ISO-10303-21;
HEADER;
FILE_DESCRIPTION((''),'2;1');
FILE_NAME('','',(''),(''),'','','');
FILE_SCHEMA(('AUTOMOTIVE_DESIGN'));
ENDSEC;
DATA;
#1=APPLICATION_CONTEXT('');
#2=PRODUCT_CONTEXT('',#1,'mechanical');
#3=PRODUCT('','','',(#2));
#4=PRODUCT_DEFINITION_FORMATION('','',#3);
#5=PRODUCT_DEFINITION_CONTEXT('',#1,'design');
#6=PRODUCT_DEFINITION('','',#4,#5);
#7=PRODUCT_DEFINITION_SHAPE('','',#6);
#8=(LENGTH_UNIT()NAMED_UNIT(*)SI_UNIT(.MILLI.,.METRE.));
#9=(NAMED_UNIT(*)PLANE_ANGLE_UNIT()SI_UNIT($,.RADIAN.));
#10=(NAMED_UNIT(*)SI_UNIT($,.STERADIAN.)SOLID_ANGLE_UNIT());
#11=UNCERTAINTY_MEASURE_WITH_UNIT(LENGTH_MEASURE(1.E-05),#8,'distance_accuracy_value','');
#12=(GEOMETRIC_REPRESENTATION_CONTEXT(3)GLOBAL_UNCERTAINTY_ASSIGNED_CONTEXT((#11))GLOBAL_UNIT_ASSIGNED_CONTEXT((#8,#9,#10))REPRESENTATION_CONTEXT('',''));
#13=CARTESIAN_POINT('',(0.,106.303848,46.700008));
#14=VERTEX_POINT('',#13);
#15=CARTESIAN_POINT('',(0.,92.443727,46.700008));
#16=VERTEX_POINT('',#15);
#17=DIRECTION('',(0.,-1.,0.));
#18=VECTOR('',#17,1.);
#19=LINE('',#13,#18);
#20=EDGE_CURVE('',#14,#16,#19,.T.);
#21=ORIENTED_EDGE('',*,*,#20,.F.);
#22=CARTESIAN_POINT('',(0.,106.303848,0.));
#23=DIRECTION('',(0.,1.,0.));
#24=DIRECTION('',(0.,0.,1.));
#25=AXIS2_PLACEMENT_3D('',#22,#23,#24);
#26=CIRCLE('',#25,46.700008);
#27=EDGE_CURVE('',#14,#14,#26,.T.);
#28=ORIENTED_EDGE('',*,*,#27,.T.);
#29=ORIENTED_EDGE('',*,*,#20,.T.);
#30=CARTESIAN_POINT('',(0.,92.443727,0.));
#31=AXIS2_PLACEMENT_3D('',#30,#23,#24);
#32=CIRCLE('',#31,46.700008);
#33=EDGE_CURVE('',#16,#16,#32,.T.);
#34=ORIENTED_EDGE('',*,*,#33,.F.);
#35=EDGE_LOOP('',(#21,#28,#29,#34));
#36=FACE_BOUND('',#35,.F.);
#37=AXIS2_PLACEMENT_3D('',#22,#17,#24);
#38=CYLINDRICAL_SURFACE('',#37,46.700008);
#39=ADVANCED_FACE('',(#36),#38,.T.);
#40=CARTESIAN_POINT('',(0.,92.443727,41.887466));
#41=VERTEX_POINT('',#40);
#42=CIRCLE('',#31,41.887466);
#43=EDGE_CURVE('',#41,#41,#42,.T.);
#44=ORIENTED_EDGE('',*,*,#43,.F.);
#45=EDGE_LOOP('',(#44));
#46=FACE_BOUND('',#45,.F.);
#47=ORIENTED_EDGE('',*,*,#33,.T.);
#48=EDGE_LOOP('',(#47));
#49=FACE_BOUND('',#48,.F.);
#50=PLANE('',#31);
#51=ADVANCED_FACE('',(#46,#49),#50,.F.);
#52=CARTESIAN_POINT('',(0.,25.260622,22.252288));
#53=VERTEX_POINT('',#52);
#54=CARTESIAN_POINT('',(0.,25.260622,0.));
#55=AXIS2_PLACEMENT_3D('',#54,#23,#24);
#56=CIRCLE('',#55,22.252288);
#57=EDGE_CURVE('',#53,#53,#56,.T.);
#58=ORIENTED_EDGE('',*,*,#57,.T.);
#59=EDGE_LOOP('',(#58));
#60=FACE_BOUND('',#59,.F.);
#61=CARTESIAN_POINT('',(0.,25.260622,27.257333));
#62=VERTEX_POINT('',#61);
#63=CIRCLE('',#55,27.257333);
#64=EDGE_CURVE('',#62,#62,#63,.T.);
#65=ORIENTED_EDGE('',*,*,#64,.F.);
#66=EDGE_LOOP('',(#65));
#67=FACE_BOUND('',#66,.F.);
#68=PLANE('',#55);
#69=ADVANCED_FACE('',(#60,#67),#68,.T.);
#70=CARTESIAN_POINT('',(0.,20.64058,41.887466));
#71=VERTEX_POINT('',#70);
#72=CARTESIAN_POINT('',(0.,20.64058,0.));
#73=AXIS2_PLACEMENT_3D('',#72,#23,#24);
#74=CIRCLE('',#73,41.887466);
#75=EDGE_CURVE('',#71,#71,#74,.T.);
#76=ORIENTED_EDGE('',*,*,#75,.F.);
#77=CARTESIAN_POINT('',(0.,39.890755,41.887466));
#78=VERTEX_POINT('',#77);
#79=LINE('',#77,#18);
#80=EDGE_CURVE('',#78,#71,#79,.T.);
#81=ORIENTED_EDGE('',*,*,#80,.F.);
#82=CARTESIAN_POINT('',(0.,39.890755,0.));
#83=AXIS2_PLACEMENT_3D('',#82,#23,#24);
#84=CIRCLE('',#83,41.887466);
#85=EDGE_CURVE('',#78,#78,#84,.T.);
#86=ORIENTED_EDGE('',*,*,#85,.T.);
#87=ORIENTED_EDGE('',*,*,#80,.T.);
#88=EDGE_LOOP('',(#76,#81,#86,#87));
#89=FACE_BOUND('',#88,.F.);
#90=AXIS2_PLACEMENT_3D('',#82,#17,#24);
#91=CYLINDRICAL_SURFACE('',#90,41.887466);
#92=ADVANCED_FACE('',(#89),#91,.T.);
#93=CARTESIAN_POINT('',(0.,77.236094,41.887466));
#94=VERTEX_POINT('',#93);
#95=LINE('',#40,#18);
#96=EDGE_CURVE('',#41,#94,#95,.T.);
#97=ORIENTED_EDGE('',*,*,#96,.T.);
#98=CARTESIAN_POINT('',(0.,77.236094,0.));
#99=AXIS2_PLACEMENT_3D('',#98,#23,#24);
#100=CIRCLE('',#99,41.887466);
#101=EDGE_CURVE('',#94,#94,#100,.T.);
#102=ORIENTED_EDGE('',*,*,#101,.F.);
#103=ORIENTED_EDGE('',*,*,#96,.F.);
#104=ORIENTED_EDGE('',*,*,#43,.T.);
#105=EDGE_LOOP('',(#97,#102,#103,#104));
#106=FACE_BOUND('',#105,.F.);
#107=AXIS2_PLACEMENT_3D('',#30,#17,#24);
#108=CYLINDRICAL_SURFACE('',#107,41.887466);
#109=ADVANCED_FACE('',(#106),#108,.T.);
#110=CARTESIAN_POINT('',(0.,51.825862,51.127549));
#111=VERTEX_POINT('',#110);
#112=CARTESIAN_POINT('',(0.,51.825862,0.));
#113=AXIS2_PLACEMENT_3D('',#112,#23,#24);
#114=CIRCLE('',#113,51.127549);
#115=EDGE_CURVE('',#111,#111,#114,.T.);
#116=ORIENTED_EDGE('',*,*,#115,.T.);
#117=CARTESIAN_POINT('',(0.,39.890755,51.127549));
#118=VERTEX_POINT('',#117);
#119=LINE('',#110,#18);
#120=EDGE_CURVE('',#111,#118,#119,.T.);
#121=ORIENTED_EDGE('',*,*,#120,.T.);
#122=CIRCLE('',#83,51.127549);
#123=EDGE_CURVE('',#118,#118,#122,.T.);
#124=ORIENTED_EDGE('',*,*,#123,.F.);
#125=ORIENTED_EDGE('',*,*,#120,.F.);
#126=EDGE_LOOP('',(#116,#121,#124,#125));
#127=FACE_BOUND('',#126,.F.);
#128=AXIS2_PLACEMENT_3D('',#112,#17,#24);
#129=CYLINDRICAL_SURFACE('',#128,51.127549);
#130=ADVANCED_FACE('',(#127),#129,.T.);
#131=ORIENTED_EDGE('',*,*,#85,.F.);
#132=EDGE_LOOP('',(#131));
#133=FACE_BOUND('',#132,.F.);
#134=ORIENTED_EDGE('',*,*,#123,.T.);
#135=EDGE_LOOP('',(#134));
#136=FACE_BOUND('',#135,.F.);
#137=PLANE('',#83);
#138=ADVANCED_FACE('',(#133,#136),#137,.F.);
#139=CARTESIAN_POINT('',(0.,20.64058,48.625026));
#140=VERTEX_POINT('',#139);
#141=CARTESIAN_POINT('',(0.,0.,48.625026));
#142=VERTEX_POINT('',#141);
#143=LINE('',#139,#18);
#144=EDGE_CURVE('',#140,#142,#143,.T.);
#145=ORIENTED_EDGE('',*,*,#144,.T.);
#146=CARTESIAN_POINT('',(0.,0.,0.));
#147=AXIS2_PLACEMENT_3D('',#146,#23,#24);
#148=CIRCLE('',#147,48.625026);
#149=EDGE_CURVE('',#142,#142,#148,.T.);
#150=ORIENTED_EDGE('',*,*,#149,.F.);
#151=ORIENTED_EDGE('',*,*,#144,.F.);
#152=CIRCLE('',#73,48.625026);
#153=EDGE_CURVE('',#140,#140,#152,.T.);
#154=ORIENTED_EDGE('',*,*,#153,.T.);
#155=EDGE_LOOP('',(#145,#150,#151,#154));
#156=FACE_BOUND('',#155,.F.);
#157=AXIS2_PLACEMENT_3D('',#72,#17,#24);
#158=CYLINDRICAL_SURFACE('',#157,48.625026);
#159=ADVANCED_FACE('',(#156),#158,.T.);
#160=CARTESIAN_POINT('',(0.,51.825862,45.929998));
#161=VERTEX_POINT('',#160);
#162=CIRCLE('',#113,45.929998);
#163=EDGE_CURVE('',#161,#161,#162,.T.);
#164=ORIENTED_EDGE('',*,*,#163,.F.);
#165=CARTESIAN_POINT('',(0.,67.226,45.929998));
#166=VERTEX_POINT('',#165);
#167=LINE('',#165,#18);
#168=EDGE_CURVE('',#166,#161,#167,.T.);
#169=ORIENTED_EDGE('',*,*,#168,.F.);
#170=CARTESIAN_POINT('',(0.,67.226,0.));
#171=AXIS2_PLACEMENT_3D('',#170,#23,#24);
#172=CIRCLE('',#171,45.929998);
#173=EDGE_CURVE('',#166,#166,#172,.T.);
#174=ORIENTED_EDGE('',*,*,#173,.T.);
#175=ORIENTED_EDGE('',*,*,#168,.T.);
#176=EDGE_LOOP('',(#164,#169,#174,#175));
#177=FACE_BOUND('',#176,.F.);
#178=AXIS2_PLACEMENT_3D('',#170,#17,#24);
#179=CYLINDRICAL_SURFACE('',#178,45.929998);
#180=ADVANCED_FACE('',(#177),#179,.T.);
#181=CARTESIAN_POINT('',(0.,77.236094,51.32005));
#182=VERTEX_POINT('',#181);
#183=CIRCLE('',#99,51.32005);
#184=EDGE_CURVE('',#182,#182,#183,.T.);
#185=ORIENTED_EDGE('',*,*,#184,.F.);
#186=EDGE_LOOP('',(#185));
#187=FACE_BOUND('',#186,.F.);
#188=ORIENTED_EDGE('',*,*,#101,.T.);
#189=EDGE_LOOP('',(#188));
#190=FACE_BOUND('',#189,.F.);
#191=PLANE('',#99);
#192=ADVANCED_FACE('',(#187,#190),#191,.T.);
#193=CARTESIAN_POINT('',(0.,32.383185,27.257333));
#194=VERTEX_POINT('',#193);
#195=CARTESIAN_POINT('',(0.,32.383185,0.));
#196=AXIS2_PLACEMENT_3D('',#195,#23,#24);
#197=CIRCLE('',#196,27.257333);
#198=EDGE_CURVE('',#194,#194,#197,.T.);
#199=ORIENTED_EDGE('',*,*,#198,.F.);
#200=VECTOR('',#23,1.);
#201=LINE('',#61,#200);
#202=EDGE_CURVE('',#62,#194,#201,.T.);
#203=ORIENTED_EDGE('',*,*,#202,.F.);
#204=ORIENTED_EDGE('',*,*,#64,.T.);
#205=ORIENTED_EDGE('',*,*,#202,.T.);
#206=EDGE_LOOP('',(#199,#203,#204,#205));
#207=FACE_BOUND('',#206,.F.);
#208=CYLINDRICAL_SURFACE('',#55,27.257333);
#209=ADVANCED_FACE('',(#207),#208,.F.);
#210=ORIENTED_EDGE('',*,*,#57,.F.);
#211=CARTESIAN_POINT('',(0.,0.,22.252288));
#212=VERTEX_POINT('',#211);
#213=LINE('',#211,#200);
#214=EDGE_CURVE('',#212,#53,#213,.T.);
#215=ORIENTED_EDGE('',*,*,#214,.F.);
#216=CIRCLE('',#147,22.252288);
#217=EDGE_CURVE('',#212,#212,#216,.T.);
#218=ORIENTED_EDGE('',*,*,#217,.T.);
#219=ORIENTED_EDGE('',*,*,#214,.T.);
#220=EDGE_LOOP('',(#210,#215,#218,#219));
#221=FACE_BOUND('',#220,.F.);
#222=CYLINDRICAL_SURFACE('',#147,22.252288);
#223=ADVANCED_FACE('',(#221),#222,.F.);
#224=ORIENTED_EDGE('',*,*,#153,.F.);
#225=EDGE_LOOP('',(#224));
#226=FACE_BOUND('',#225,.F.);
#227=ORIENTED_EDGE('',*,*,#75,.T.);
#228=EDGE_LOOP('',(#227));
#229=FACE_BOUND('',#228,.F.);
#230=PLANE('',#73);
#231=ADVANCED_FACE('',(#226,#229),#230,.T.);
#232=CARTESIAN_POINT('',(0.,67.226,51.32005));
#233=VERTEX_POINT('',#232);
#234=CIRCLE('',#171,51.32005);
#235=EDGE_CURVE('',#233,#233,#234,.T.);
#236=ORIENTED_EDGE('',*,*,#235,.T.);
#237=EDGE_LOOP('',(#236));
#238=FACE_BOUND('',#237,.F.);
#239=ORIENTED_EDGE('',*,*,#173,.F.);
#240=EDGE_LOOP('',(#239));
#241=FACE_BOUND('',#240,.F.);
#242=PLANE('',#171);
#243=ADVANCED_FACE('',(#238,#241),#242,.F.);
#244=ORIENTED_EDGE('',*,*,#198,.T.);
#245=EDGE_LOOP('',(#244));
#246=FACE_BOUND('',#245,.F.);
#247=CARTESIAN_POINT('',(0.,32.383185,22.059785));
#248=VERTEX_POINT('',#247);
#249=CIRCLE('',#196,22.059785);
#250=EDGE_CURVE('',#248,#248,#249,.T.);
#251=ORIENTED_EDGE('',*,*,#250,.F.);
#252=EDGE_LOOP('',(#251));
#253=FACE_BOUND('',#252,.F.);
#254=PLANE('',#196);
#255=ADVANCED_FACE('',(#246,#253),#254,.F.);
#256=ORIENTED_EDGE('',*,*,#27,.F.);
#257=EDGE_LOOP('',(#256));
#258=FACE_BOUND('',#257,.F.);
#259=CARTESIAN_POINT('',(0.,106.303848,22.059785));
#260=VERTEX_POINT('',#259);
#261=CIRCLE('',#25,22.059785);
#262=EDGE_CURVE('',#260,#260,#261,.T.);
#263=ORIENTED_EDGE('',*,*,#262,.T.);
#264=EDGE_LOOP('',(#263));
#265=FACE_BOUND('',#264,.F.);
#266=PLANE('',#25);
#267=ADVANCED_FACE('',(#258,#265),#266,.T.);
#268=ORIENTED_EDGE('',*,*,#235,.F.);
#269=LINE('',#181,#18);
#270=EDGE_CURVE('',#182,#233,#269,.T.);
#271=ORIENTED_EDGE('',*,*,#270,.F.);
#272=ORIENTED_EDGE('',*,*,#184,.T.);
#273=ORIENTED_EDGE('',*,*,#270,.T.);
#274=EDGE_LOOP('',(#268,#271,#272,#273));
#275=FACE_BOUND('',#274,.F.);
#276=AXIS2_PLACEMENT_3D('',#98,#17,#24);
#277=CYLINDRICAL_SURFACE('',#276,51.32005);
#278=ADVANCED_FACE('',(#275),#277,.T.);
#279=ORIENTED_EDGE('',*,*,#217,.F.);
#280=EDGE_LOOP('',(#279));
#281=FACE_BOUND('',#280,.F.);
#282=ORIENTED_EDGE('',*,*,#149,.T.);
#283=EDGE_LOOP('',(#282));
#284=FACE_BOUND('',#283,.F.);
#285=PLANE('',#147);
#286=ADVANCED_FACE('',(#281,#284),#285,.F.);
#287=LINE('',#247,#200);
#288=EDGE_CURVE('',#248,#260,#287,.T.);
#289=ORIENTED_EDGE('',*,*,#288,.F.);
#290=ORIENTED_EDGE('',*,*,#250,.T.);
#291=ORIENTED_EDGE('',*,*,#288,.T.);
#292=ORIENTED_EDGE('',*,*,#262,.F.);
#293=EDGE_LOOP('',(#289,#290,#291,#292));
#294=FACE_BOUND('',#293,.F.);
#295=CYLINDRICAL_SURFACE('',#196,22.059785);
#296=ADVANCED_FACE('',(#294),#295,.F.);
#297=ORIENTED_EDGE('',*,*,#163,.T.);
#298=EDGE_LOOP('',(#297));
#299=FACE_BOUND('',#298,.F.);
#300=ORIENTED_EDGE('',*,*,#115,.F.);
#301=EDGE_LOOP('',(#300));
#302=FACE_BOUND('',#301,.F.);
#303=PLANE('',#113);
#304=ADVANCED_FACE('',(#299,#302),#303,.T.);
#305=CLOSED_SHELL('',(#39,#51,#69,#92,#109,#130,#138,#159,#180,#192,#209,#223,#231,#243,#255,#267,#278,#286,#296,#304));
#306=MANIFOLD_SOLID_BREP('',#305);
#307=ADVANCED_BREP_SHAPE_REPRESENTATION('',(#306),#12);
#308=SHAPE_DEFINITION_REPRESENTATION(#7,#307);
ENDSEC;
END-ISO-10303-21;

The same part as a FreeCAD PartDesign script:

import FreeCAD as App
import Part
import Sketcher

V = App.Vector
Q = App.Units.Quantity


def add_polygon(sketch, points):
    """Adds a closed chain of lines whose ends are joined by coincident constraints."""
    first, n = sketch.GeometryCount, len(points)
    for a, b in zip(points, points[1:] + points[:1]):
        sketch.addGeometry(Part.LineSegment(App.Vector(*a, 0), App.Vector(*b, 0)), False)
    for i in range(n):
        sketch.addConstraint(Sketcher.Constraint("Coincident", first + i, 2, first + (i + 1) % n, 1))

doc = App.newDocument("Part")
body = doc.addObject("PartDesign::Body", "Body")

# Sketch on YZ plane
sketch1 = body.newObject("Sketcher::SketchObject", "Sketch")
sketch1.AttachmentSupport = (doc.getObject("YZ_Plane"), [""])
sketch1.MapMode = "FlatFace"
add_polygon(sketch1, [(0, 48.625026), (0, 22.252288), (25.260622, 22.252288), (25.260622, 27.257333), (32.383185, 27.257333), (32.383185, 22.059785), (106.303848, 22.059785), (106.303848, 46.700008), (92.443727, 46.700008), (92.443727, 41.887466), (77.236094, 41.887466), (77.236094, 51.32005), (67.226, 51.32005), (67.226, 45.929998), (51.825862, 45.929998), (51.825862, 51.127549), (39.890755, 51.127549), (39.890755, 41.887466), (20.64058, 41.887466), (20.64058, 48.625026)])  # lines 0-19
sketch1.addConstraint([
    Sketcher.Constraint("Vertical", 0),
    Sketcher.Constraint("Horizontal", 1),
    Sketcher.Constraint("Vertical", 2),
    Sketcher.Constraint("Horizontal", 3),
    Sketcher.Constraint("Vertical", 4),
    Sketcher.Constraint("Horizontal", 5),
    Sketcher.Constraint("Vertical", 6),
    Sketcher.Constraint("Horizontal", 7),
    Sketcher.Constraint("Vertical", 8),
    Sketcher.Constraint("Horizontal", 9),
    Sketcher.Constraint("Vertical", 10),
    Sketcher.Constraint("Horizontal", 11),
    Sketcher.Constraint("Vertical", 12),
    Sketcher.Constraint("Horizontal", 13),
    Sketcher.Constraint("Vertical", 14),
    Sketcher.Constraint("Horizontal", 15),
    Sketcher.Constraint("Vertical", 16),
    Sketcher.Constraint("Horizontal", 17),
    Sketcher.Constraint("Vertical", 18),
    Sketcher.Constraint("Horizontal", 19),
    Sketcher.Constraint("PointOnObject", 0, 2, -2),
    Sketcher.Constraint("Horizontal", 9, 2, 16, 2),
    Sketcher.Constraint("DistanceX", -1, 1, 11, 2, Q("67.226 mm")),
    Sketcher.Constraint("DistanceX", 7, 2, 7, 1, Q("13.860121 mm")),
    Sketcher.Constraint("DistanceX", 19, 2, 19, 1, Q("20.64058 mm")),
    Sketcher.Constraint("DistanceY", 8, 2, 8, 1, Q("4.812542 mm")),
    Sketcher.Constraint("DistanceY", 14, 1, 14, 2, Q("5.197551 mm")),
    Sketcher.Constraint("DistanceY", 18, 1, 18, 2, Q("6.73756 mm")),
    Sketcher.Constraint("DistanceY", 14, 2, 11, 2, Q("0.192501 mm")),
    Sketcher.Constraint("DistanceX", 1, 1, 1, 2, Q("25.260622 mm")),
    Sketcher.Constraint("DistanceX", 3, 1, 3, 2, Q("7.122563 mm")),
    Sketcher.Constraint("DistanceX", 5, 1, 5, 2, Q("73.920663 mm")),
    Sketcher.Constraint("DistanceX", 9, 2, 9, 1, Q("15.207633 mm")),
    Sketcher.Constraint("DistanceX", 13, 2, 13, 1, Q("15.400138 mm")),
    Sketcher.Constraint("DistanceX", 15, 2, 15, 1, Q("11.935107 mm")),
    Sketcher.Constraint("DistanceY", 0, 2, 0, 1, Q("26.372738 mm")),
    Sketcher.Constraint("DistanceY", 2, 1, 2, 2, Q("5.005045 mm")),
    Sketcher.Constraint("DistanceY", 4, 2, 4, 1, Q("5.197548 mm")),
    Sketcher.Constraint("DistanceY", 10, 1, 10, 2, Q("9.432584 mm")),
    Sketcher.Constraint("DistanceY", -1, 1, 0, 2, Q("22.252288 mm")),
])
revolution = body.newObject("PartDesign::Revolution", "Revolution")
revolution.Profile = sketch1
revolution.ReferenceAxis = (sketch1, ["H_Axis"])
revolution.Angle = 360

doc.recompute()
